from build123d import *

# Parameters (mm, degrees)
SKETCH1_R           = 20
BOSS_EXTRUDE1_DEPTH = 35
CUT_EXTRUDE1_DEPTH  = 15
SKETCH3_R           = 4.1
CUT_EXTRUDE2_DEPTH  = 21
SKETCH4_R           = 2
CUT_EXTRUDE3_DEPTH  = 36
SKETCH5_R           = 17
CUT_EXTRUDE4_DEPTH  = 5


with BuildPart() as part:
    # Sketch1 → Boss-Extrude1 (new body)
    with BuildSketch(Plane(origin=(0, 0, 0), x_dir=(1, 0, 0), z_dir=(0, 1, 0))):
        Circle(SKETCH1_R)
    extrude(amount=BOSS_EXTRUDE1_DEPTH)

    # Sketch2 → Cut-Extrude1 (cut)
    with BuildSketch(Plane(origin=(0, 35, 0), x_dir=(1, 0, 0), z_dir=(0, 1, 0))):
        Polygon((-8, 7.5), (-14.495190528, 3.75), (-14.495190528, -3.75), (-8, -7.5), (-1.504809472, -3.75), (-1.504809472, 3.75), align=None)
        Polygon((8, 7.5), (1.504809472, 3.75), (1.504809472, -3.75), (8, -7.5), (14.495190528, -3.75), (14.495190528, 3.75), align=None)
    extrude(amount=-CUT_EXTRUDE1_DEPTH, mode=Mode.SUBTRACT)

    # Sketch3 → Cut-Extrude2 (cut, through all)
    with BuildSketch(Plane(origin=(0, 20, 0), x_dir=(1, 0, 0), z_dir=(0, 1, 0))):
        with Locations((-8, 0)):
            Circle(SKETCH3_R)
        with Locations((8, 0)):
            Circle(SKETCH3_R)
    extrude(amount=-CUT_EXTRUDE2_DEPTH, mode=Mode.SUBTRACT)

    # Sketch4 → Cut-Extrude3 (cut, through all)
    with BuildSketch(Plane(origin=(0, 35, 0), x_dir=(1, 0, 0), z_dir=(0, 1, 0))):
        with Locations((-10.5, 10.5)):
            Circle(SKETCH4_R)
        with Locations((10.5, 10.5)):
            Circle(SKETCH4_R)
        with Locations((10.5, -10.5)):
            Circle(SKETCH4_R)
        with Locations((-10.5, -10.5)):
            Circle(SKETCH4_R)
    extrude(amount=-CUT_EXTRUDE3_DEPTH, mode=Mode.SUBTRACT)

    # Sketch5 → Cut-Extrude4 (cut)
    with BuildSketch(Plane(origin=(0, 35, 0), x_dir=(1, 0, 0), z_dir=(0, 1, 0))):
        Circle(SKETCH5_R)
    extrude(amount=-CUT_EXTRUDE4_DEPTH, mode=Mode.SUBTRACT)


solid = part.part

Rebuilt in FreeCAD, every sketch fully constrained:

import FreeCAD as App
import Part
import Sketcher

V = App.Vector
Q = App.Units.Quantity

doc = App.newDocument("Part")
body = doc.addObject("PartDesign::Body", "Body")

# Sketch on XZ plane
sketch1 = body.newObject("Sketcher::SketchObject", "Sketch")
sketch1.AttachmentSupport = (doc.getObject("XZ_Plane"), [""])
sketch1.MapMode = "FlatFace"
sketch1.addGeometry(Part.Circle(V(0, 0, 0), V(0, 0, 1), 20), False)
sketch1.addConstraint(Sketcher.Constraint("Coincident", 0, 3, -1, 1))
sketch1.addConstraint(Sketcher.Constraint("Diameter", 0, 40.0))
pad1 = body.newObject("PartDesign::Pad", "Pad")
pad1.Profile = sketch1
pad1.Length = 35
pad1.Reversed = True

# Sketch on XZ plane
sketch2 = body.newObject("Sketcher::SketchObject", "Sketch001")
sketch2.AttachmentSupport = (doc.getObject("XZ_Plane"), [""])
sketch2.MapMode = "FlatFace"
sketch2.AttachmentOffset = App.Placement(V(0, 0, -35), App.Rotation())
sketch2.addGeometry(Part.LineSegment(V(-8, -7.5, 0), V(-14.495191, -3.75, 0)), False)
sketch2.addGeometry(Part.LineSegment(V(-14.495191, -3.75, 0), V(-14.495191, 3.75, 0)), False)
sketch2.addGeometry(Part.LineSegment(V(-14.495191, 3.75, 0), V(-8, 7.5, 0)), False)
sketch2.addGeometry(Part.LineSegment(V(-8, 7.5, 0), V(-1.504809, 3.75, 0)), False)
sketch2.addGeometry(Part.LineSegment(V(-1.504809, 3.75, 0), V(-1.504809, -3.75, 0)), False)
sketch2.addGeometry(Part.LineSegment(V(-1.504809, -3.75, 0), V(-8, -7.5, 0)), False)
sketch2.addGeometry(Part.LineSegment(V(8, -7.5, 0), V(1.504809, -3.75, 0)), False)
sketch2.addGeometry(Part.LineSegment(V(1.504809, -3.75, 0), V(1.504809, 3.75, 0)), False)
sketch2.addGeometry(Part.LineSegment(V(1.504809, 3.75, 0), V(8, 7.5, 0)), False)
sketch2.addGeometry(Part.LineSegment(V(8, 7.5, 0), V(14.495191, 3.75, 0)), False)
sketch2.addGeometry(Part.LineSegment(V(14.495191, 3.75, 0), V(14.495191, -3.75, 0)), False)
sketch2.addGeometry(Part.LineSegment(V(14.495191, -3.75, 0), V(8, -7.5, 0)), False)
sketch2.addConstraint(Sketcher.Constraint("Coincident", 0, 2, 1, 1))
sketch2.addConstraint(Sketcher.Constraint("Coincident", 1, 2, 2, 1))
sketch2.addConstraint(Sketcher.Constraint("Coincident", 2, 2, 3, 1))
sketch2.addConstraint(Sketcher.Constraint("Coincident", 3, 2, 4, 1))
sketch2.addConstraint(Sketcher.Constraint("Coincident", 4, 2, 5, 1))
sketch2.addConstraint(Sketcher.Constraint("Coincident", 5, 2, 0, 1))
sketch2.addConstraint(Sketcher.Constraint("Coincident", 6, 2, 7, 1))
sketch2.addConstraint(Sketcher.Constraint("Coincident", 7, 2, 8, 1))
sketch2.addConstraint(Sketcher.Constraint("Coincident", 8, 2, 9, 1))
sketch2.addConstraint(Sketcher.Constraint("Coincident", 9, 2, 10, 1))
sketch2.addConstraint(Sketcher.Constraint("Coincident", 10, 2, 11, 1))
sketch2.addConstraint(Sketcher.Constraint("Coincident", 11, 2, 6, 1))
sketch2.addConstraint(Sketcher.Constraint("Vertical", 1))
sketch2.addConstraint(Sketcher.Constraint("Vertical", 4))
sketch2.addConstraint(Sketcher.Constraint("Vertical", 7))
sketch2.addConstraint(Sketcher.Constraint("Vertical", 10))
sketch2.addConstraint(Sketcher.Constraint("Symmetric", 3, 2, 6, 2, -1, 1))
sketch2.addConstraint(Sketcher.Constraint("Symmetric", 5, 2, 8, 2, -1, 1))
sketch2.addConstraint(Sketcher.Constraint("Symmetric", 0, 2, 9, 2, -1, 1))
sketch2.addConstraint(Sketcher.Constraint("Symmetric", 2, 2, 11, 2, -1, 1))
sketch2.addConstraint(Sketcher.Constraint("Symmetric", 2, 2, 8, 2, -2))
sketch2.addConstraint(Sketcher.Constraint("Parallel", 0, 3))
sketch2.addConstraint(Sketcher.Constraint("Parallel", 2, 5))
sketch2.addConstraint(Sketcher.Constraint("Parallel", 5, 8))
sketch2.addConstraint(Sketcher.Constraint("Parallel", 8, 11))
sketch2.addConstraint(Sketcher.Constraint("Horizontal", 1, 2, 3, 2))
sketch2.addConstraint(Sketcher.Constraint("Horizontal", 0, 2, 4, 2))
sketch2.addConstraint(Sketcher.Constraint("Angle", 0, Q("150 deg")))
sketch2.addConstraint(Sketcher.Constraint("DistanceY", 1, 1, 1, 2, 7.5))
sketch2.addConstraint(Sketcher.Constraint("DistanceX", 2, 2, -1, 1, 8.0))
sketch2.addConstraint(Sketcher.Constraint("DistanceY", 5, 2, 2, 2, 15.0))
pocket1 = body.newObject("PartDesign::Pocket", "Pocket")
pocket1.Profile = sketch2
pocket1.Length = 15
pocket1.Reversed = True

# Sketch on XZ plane
sketch3 = body.newObject("Sketcher::SketchObject", "Sketch002")
sketch3.AttachmentSupport = (doc.getObject("XZ_Plane"), [""])
sketch3.MapMode = "FlatFace"
sketch3.AttachmentOffset = App.Placement(V(0, 0, -20), App.Rotation())
sketch3.addGeometry(Part.Circle(V(-8, 0, 0), V(0, 0, 1), 4.1), False)
sketch3.addGeometry(Part.Circle(V(8, 0, 0), V(0, 0, 1), 4.1), False)
sketch3.addConstraint(Sketcher.Constraint("Equal", 0, 1))
sketch3.addConstraint(Sketcher.Constraint("Symmetric", 0, 3, 1, 3, -1, 1))
sketch3.addConstraint(Sketcher.Constraint("PointOnObject", 0, 3, -1))
sketch3.addConstraint(Sketcher.Constraint("Diameter", 0, 8.2))
sketch3.addConstraint(Sketcher.Constraint("DistanceX", 0, 3, -1, 1, 8.0))
pocket2 = body.newObject("PartDesign::Pocket", "Pocket001")
pocket2.Profile = sketch3
pocket2.Type = "ThroughAll"
pocket2.Reversed = True

# Sketch on XZ plane
sketch4 = body.newObject("Sketcher::SketchObject", "Sketch003")
sketch4.AttachmentSupport = (doc.getObject("XZ_Plane"), [""])
sketch4.MapMode = "FlatFace"
sketch4.AttachmentOffset = App.Placement(V(0, 0, -35), App.Rotation())
sketch4.addGeometry(Part.Circle(V(-10.5, -10.5, 0), V(0, 0, 1), 2), False)
sketch4.addGeometry(Part.Circle(V(10.5, -10.5, 0), V(0, 0, 1), 2), False)
sketch4.addGeometry(Part.Circle(V(10.5, 10.5, 0), V(0, 0, 1), 2), False)
sketch4.addGeometry(Part.Circle(V(-10.5, 10.5, 0), V(0, 0, 1), 2), False)
sketch4.addConstraint(Sketcher.Constraint("Equal", 0, 1))
sketch4.addConstraint(Sketcher.Constraint("Equal", 1, 2))
sketch4.addConstraint(Sketcher.Constraint("Equal", 2, 3))
sketch4.addConstraint(Sketcher.Constraint("Symmetric", 0, 3, 2, 3, -1, 1))
sketch4.addConstraint(Sketcher.Constraint("Symmetric", 1, 3, 3, 3, -1, 1))
sketch4.addConstraint(Sketcher.Constraint("Symmetric", 0, 3, 1, 3, -2))
sketch4.addConstraint(Sketcher.Constraint("Diameter", 0, 4.0))
sketch4.addConstraint(Sketcher.Constraint("DistanceX", 0, 3, 1, 3, 21.0))
sketch4.addConstraint(Sketcher.Constraint("DistanceY", 1, 3, 2, 3, 21.0))
pocket3 = body.newObject("PartDesign::Pocket", "Pocket002")
pocket3.Profile = sketch4
pocket3.Type = "ThroughAll"
pocket3.Reversed = True

# Sketch on XZ plane
sketch5 = body.newObject("Sketcher::SketchObject", "Sketch004")
sketch5.AttachmentSupport = (doc.getObject("XZ_Plane"), [""])
sketch5.MapMode = "FlatFace"
sketch5.AttachmentOffset = App.Placement(V(0, 0, -35), App.Rotation())
sketch5.addGeometry(Part.Circle(V(0, 0, 0), V(0, 0, 1), 17), False)
sketch5.addConstraint(Sketcher.Constraint("Coincident", 0, 3, -1, 1))
sketch5.addConstraint(Sketcher.Constraint("Diameter", 0, 34.0))
pocket4 = body.newObject("PartDesign::Pocket", "Pocket003")
pocket4.Profile = sketch5
pocket4.Length = 5
pocket4.Reversed = True

doc.recompute()
